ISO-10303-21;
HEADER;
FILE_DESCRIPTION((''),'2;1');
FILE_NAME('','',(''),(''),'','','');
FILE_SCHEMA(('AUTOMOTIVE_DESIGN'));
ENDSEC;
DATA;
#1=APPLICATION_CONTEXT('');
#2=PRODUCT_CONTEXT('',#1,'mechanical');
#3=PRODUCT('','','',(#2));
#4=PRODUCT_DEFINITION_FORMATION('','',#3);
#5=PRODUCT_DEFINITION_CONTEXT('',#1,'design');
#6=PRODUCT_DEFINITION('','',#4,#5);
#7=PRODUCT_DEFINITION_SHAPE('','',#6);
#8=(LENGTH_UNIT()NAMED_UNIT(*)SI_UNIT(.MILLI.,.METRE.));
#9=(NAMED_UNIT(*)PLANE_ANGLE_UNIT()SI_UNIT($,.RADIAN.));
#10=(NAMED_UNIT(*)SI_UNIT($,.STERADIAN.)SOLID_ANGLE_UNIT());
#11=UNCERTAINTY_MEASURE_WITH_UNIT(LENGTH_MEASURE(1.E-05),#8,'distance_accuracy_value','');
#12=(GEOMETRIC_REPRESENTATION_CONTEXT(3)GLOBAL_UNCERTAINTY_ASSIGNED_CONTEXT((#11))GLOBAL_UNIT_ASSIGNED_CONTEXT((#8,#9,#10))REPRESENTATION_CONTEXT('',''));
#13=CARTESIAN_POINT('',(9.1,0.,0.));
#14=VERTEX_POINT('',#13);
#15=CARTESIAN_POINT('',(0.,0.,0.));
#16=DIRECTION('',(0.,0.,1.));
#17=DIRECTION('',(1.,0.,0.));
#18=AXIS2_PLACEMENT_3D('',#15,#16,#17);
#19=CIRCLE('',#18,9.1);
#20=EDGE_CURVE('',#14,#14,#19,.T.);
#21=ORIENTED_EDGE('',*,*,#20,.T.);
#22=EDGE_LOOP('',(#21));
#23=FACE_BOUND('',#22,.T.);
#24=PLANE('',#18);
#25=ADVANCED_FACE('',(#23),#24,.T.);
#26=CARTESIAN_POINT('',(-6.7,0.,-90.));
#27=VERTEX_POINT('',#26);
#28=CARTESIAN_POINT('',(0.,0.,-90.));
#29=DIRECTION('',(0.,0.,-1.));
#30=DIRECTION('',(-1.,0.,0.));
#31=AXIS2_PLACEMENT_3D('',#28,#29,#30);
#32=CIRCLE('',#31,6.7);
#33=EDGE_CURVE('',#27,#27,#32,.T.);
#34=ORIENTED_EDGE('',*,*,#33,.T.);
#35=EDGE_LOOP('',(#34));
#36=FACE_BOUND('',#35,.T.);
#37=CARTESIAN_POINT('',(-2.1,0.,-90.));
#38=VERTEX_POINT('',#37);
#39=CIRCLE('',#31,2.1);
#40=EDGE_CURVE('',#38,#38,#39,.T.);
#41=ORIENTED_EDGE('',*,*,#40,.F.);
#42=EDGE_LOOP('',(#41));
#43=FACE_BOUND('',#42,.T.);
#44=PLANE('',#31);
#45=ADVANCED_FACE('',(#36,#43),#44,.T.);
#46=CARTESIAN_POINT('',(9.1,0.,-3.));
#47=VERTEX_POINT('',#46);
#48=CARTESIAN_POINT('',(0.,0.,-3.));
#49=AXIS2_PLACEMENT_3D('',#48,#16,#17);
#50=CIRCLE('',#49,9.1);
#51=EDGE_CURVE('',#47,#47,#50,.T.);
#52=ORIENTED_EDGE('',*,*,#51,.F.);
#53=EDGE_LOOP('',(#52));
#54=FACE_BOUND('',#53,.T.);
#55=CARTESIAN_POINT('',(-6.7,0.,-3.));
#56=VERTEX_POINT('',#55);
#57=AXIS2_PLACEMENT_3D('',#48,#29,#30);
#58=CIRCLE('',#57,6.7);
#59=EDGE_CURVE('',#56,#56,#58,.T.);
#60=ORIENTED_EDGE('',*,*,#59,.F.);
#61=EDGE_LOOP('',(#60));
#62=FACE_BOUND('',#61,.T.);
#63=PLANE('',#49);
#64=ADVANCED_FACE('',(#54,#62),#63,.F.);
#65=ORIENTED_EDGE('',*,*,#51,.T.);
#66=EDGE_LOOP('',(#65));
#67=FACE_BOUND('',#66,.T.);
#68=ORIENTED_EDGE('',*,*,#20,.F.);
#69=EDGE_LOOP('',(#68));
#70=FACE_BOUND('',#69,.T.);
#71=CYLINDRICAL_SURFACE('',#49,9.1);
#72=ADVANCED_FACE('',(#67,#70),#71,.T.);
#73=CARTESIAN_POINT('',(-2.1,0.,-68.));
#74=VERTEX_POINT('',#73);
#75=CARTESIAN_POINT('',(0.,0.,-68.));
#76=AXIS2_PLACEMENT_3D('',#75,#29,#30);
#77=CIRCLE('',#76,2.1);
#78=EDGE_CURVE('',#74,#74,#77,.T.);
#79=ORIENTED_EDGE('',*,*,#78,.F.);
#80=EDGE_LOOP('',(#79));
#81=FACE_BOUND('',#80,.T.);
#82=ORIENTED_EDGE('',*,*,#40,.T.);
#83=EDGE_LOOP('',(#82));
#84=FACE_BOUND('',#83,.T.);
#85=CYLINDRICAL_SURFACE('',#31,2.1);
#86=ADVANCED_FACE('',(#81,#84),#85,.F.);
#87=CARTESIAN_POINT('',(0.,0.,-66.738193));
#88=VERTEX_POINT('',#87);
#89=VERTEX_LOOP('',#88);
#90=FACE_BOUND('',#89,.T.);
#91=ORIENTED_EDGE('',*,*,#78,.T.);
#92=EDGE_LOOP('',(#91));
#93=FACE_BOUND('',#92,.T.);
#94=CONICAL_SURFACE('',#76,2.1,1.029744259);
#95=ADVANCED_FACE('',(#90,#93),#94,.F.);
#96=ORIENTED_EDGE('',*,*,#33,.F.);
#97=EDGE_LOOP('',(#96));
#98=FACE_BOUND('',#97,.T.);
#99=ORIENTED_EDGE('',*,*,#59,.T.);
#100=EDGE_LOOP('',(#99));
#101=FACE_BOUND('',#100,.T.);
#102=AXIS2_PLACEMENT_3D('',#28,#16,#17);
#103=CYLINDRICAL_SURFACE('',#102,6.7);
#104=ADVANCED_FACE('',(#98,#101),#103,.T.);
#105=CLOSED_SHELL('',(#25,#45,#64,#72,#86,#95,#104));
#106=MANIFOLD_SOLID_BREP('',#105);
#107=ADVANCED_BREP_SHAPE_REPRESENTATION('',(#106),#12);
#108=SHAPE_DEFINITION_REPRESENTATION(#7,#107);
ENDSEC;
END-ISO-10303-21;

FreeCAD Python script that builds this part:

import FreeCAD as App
import Part
import Sketcher

V = App.Vector
Q = App.Units.Quantity

doc = App.newDocument("Part")
body = doc.addObject("PartDesign::Body", "Body")

# Sketch on XY plane
sketch1 = body.newObject("Sketcher::SketchObject", "Sketch")
sketch1.AttachmentSupport = (doc.getObject("XY_Plane"), [""])
sketch1.MapMode = "FlatFace"
sketch1.addGeometry(Part.Circle(V(0, 0, 0), V(0, 0, 1), 9), False)
sketch1.addConstraint(Sketcher.Constraint("Coincident", 0, 3, -1, 1))
sketch1.addConstraint(Sketcher.Constraint("Diameter", 0, Q("18.2 mm")))
pad1 = body.newObject("PartDesign::Pad", "Pad")
pad1.Profile = sketch1
pad1.Length = 3
pad1.Reversed = True

# Sketch on XY plane
sketch2 = body.newObject("Sketcher::SketchObject", "Sketch001")
sketch2.AttachmentSupport = (doc.getObject("XY_Plane"), [""])
sketch2.MapMode = "FlatFace"
sketch2.AttachmentOffset = App.Placement(V(0, 0, -3), App.Rotation())
sketch2.addGeometry(Part.Circle(V(0, 0, 0), V(0, 0, 1), 7), False)
sketch2.addConstraint(Sketcher.Constraint("Coincident", 0, 3, -1, 1))
sketch2.addConstraint(Sketcher.Constraint("Diameter", 0, Q("13.4 mm")))
pad2 = body.newObject("PartDesign::Pad", "Pad001")
pad2.Profile = sketch2
pad2.Length = 87
pad2.Reversed = True

# Sketch on XY plane
sketch3 = body.newObject("Sketcher::SketchObject", "Sketch002")
sketch3.AttachmentSupport = (doc.getObject("XY_Plane"), [""])
sketch3.MapMode = "FlatFace"
sketch3.AttachmentOffset = App.Placement(V(0, 0, -90), App.Rotation())
sketch3.addGeometry(Part.Circle(V(0, 0, 0), V(0, 0, 1), 2.1), False)
sketch3.addConstraint(Sketcher.Constraint("Coincident", 0, 3, -1, 1))
sketch3.addConstraint(Sketcher.Constraint("Diameter", 0, Q("4.2 mm")))
doc.recompute()
hole = body.newObject("PartDesign::Hole", "Hole")
hole.Profile = sketch3
hole.ThreadType = "None"
hole.Diameter = 4.2
hole.DepthType = "Dimension"
hole.Depth = 22
hole.DrillPoint = "Angled"
hole.DrillPointAngle = 118
hole.Reversed = True

doc.recompute()
